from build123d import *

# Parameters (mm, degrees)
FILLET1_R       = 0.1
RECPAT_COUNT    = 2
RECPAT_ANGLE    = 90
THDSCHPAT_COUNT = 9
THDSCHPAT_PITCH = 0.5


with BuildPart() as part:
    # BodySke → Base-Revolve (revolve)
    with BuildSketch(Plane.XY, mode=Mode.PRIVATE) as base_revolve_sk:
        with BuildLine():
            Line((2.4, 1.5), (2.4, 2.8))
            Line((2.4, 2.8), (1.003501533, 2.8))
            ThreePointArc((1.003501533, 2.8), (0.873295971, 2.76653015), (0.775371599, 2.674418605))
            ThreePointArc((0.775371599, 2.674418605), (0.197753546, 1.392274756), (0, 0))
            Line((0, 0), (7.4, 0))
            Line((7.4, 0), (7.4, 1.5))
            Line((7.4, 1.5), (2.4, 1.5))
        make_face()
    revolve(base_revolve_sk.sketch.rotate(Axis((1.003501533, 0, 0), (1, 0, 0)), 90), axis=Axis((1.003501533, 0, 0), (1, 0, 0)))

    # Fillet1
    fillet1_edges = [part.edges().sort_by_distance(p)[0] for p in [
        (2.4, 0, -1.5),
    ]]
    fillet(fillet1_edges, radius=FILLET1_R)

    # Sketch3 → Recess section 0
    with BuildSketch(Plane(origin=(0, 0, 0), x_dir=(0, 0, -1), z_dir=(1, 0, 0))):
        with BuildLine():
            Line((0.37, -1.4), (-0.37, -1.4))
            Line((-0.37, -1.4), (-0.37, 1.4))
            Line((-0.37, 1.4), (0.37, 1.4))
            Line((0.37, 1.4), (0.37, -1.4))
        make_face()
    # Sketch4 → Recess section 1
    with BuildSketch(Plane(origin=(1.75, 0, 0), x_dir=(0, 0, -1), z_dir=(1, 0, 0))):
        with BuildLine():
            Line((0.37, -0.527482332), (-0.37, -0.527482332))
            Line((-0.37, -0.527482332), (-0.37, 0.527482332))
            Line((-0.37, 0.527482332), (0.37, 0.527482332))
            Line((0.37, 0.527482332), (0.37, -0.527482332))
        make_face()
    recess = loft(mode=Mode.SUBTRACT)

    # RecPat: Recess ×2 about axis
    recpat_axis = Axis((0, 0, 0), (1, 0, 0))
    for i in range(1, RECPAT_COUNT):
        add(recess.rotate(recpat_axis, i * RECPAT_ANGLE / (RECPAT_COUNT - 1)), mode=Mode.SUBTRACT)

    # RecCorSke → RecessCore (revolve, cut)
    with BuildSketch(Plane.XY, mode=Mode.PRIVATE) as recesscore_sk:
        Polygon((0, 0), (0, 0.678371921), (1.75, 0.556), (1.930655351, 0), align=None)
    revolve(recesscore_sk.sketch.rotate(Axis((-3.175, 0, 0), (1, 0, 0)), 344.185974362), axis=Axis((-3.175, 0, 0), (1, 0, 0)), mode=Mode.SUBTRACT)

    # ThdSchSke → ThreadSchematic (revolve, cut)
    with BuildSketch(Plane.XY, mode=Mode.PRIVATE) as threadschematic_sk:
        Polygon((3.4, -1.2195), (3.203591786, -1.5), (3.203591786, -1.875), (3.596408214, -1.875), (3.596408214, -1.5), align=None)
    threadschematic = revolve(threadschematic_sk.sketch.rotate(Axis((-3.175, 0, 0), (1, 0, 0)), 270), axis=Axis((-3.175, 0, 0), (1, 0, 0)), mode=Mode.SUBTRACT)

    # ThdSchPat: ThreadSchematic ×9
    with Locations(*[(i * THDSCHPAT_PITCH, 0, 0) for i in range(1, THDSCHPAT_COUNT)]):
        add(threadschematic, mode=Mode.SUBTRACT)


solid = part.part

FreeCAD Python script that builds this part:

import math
import FreeCAD as App
import Part
import Sketcher

V = App.Vector
Q = App.Units.Quantity


def edges_at(feature, points):
    """Names of the edges that pass closest to the given points."""
    edges = feature.Shape.Edges
    near = lambda p: min(range(len(edges)), key=lambda i: edges[i].distToShape(Part.Vertex(*p))[0])
    return sorted({f"Edge{near(p) + 1}" for p in points})


def add_polygon(sketch, points):
    """Adds a closed chain of lines whose ends are joined by coincident constraints."""
    first, n = sketch.GeometryCount, len(points)
    for a, b in zip(points, points[1:] + points[:1]):
        sketch.addGeometry(Part.LineSegment(App.Vector(*a, 0), App.Vector(*b, 0)), False)
    for i in range(n):
        sketch.addConstraint(Sketcher.Constraint("Coincident", first + i, 2, first + (i + 1) % n, 1))

doc = App.newDocument("Part")
body = doc.addObject("PartDesign::Body", "Body")

sketch1 = body.newObject("Sketcher::SketchObject", "Sketch")
sketch1.AttachmentSupport = (doc.getObject("XY_Plane"), [""])
sketch1.MapMode = "FlatFace"
sketch1.addGeometry([
    Part.LineSegment(V(2.4, 1.5, 0), V(2.4, 2.8, 0)),
    Part.LineSegment(V(2.4, 2.8, 0), V(1, 2.8, 0)),
    Part.ArcOfCircle(Part.Circle(V(1, 2.53, 0), V(0, 0, 1), 0.27), math.radians(90), math.radians(148)),
    Part.ArcOfCircle(Part.Circle(V(5, 0, 0), V(0, 0, 1), 5), math.radians(148), math.radians(180)),
    Part.LineSegment(V(0, 0, 0), V(7.4, 0, 0)),
    Part.LineSegment(V(7.4, 0, 0), V(7.4, 1.5, 0)),
    Part.LineSegment(V(7.4, 1.5, 0), V(2.4, 1.5, 0)),
], False)
sketch1.addConstraint([
    Sketcher.Constraint("Coincident", 0, 2, 1, 1),
    Sketcher.Constraint("Tangent", 1, 2, 2, 1),
    Sketcher.Constraint("Tangent", 2, 2, 3, 1),
    Sketcher.Constraint("Coincident", 3, 2, 4, 1),
    Sketcher.Constraint("Coincident", 4, 2, 5, 1),
    Sketcher.Constraint("Coincident", 5, 2, 6, 1),
    Sketcher.Constraint("Coincident", 6, 2, 0, 1),
    Sketcher.Constraint("Vertical", 0),
    Sketcher.Constraint("Horizontal", 1),
    Sketcher.Constraint("Horizontal", 4),
    Sketcher.Constraint("Vertical", 5),
    Sketcher.Constraint("Horizontal", 6),
    Sketcher.Constraint("Coincident", 3, 2, -1, 1),
    Sketcher.Constraint("PointOnObject", 3, 3, -1),
    Sketcher.Constraint("Radius", 3, 5.0),
    Sketcher.Constraint("DistanceX", 6, 2, 6, 1, 5.0),
    Sketcher.Constraint("Radius", 2, 0.27),
    Sketcher.Constraint("DistanceX", 4, 1, 4, 2, 7.4),
    Sketcher.Constraint("DistanceY", 0, 1, 0, 2, 1.3),
    Sketcher.Constraint("DistanceY", 5, 1, 5, 2, 1.5),
])
revolution = body.newObject("PartDesign::Revolution", "Revolution")
revolution.Profile = sketch1
revolution.ReferenceAxis = (sketch1, ["H_Axis"])
revolution.Angle = 360
doc.recompute()

fillet = body.newObject("PartDesign::Fillet", "Fillet")
fillet.Base = (revolution, edges_at(revolution, [(2.4, 0, -1.5)]))
fillet.Radius = 0.1

sketch2 = body.newObject("Sketcher::SketchObject", "Sketch001")
sketch2.AttachmentSupport = (doc.getObject("YZ_Plane"), [""])
sketch2.MapMode = "FlatFace"
add_polygon(sketch2, [(-1.4, 0.4), (-1.4, -0.4), (1.4, -0.4), (1.4, 0.4)])
sketch2.addConstraint([
    Sketcher.Constraint("Vertical", 0),
    Sketcher.Constraint("Horizontal", 1),
    Sketcher.Constraint("Vertical", 2),
    Sketcher.Constraint("Horizontal", 3),
    Sketcher.Constraint("Symmetric", 0, 2, 2, 2, -1, 1),
    Sketcher.Constraint("DistanceX", 1, 1, 1, 2, 2.8),
    Sketcher.Constraint("DistanceY", 0, 2, 0, 1, 0.74),
])

sketch3 = body.newObject("Sketcher::SketchObject", "Sketch002")
sketch3.AttachmentSupport = (doc.getObject("YZ_Plane"), [""])
sketch3.MapMode = "FlatFace"
sketch3.AttachmentOffset = App.Placement(V(0, 0, 1.75), App.Rotation())
add_polygon(sketch3, [(-0.5, 0.4), (-0.5, -0.4), (0.5, -0.4), (0.5, 0.4)])
sketch3.addConstraint([
    Sketcher.Constraint("Vertical", 0),
    Sketcher.Constraint("Horizontal", 1),
    Sketcher.Constraint("Vertical", 2),
    Sketcher.Constraint("Horizontal", 3),
    Sketcher.Constraint("Symmetric", 0, 2, 2, 2, -1, 1),
    Sketcher.Constraint("DistanceY", 0, 2, 0, 1, 0.74),
    Sketcher.Constraint("DistanceX", 1, 1, 1, 2, 1.054965),
])

subtractiveloft = body.newObject("PartDesign::SubtractiveLoft", "SubtractiveLoft")
subtractiveloft.Profile = sketch2
subtractiveloft.Sections = [sketch3]
doc.recompute()

polarpattern = body.newObject("PartDesign::PolarPattern", "PolarPattern")
polarpattern.Originals = [subtractiveloft]
polarpattern.Axis = (doc.getObject("X_Axis"), [""])
polarpattern.Angle = 90
polarpattern.Occurrences = 2
body.Tip = polarpattern

sketch4 = body.newObject("Sketcher::SketchObject", "Sketch003")
sketch4.AttachmentSupport = (doc.getObject("XY_Plane"), [""])
sketch4.MapMode = "FlatFace"
add_polygon(sketch4, [(0, 0.7), (0, 0), (1.9, 0), (1.8, 0.6)])
sketch4.addConstraint([
    Sketcher.Constraint("Vertical", 0),
    Sketcher.Constraint("Horizontal", 1),
    Sketcher.Constraint("Coincident", 0, 2, -1, 1),
    Sketcher.Constraint("Angle", 2, Q("108 deg")),
    Sketcher.Constraint("Angle", 3, Q("176 deg")),
    Sketcher.Constraint("DistanceX", -1, 1, 2, 2, 1.75),
    Sketcher.Constraint("DistanceY", -1, 1, 2, 2, 0.556),
])
groove = body.newObject("PartDesign::Groove", "Groove")
groove.Profile = sketch4
groove.ReferenceAxis = (sketch4, ["H_Axis"])
groove.Angle = 360

sketch5 = body.newObject("Sketcher::SketchObject", "Sketch004")
sketch5.AttachmentSupport = (doc.getObject("XY_Plane"), [""])
sketch5.MapMode = "FlatFace"
add_polygon(sketch5, [(3.4, -1.22), (3.2, -1.5), (3.2, -1.88), (3.6, -1.88), (3.6, -1.5)])
sketch5.addConstraint([
    Sketcher.Constraint("Vertical", 1),
    Sketcher.Constraint("Horizontal", 2),
    Sketcher.Constraint("Vertical", 3),
    Sketcher.Constraint("Horizontal", 0, 2, 3, 2),
    Sketcher.Constraint("Equal", 0, 4),
    Sketcher.Constraint("Angle", 0, Q("-125 deg")),
    Sketcher.Constraint("DistanceY", 0, 2, -1, 1, 1.5),
    Sketcher.Constraint("DistanceX", -1, 1, 4, 2, 3.4),
    Sketcher.Constraint("DistanceY", 1, 2, 1, 1, 0.375),
    Sketcher.Constraint("DistanceY", 4, 2, -1, 1, 1.2195),
])
groove2 = body.newObject("PartDesign::Groove", "Groove001")
groove2.Profile = sketch5
groove2.ReferenceAxis = (sketch5, ["H_Axis"])
groove2.Angle = 360
doc.recompute()

linearpattern = body.newObject("PartDesign::LinearPattern", "LinearPattern")
linearpattern.Originals = [groove2]
linearpattern.Direction = (doc.getObject("X_Axis"), [""])
linearpattern.Mode = "offset"
linearpattern.Offset = 0.5
linearpattern.Occurrences = 9
body.Tip = linearpattern

doc.recompute()
